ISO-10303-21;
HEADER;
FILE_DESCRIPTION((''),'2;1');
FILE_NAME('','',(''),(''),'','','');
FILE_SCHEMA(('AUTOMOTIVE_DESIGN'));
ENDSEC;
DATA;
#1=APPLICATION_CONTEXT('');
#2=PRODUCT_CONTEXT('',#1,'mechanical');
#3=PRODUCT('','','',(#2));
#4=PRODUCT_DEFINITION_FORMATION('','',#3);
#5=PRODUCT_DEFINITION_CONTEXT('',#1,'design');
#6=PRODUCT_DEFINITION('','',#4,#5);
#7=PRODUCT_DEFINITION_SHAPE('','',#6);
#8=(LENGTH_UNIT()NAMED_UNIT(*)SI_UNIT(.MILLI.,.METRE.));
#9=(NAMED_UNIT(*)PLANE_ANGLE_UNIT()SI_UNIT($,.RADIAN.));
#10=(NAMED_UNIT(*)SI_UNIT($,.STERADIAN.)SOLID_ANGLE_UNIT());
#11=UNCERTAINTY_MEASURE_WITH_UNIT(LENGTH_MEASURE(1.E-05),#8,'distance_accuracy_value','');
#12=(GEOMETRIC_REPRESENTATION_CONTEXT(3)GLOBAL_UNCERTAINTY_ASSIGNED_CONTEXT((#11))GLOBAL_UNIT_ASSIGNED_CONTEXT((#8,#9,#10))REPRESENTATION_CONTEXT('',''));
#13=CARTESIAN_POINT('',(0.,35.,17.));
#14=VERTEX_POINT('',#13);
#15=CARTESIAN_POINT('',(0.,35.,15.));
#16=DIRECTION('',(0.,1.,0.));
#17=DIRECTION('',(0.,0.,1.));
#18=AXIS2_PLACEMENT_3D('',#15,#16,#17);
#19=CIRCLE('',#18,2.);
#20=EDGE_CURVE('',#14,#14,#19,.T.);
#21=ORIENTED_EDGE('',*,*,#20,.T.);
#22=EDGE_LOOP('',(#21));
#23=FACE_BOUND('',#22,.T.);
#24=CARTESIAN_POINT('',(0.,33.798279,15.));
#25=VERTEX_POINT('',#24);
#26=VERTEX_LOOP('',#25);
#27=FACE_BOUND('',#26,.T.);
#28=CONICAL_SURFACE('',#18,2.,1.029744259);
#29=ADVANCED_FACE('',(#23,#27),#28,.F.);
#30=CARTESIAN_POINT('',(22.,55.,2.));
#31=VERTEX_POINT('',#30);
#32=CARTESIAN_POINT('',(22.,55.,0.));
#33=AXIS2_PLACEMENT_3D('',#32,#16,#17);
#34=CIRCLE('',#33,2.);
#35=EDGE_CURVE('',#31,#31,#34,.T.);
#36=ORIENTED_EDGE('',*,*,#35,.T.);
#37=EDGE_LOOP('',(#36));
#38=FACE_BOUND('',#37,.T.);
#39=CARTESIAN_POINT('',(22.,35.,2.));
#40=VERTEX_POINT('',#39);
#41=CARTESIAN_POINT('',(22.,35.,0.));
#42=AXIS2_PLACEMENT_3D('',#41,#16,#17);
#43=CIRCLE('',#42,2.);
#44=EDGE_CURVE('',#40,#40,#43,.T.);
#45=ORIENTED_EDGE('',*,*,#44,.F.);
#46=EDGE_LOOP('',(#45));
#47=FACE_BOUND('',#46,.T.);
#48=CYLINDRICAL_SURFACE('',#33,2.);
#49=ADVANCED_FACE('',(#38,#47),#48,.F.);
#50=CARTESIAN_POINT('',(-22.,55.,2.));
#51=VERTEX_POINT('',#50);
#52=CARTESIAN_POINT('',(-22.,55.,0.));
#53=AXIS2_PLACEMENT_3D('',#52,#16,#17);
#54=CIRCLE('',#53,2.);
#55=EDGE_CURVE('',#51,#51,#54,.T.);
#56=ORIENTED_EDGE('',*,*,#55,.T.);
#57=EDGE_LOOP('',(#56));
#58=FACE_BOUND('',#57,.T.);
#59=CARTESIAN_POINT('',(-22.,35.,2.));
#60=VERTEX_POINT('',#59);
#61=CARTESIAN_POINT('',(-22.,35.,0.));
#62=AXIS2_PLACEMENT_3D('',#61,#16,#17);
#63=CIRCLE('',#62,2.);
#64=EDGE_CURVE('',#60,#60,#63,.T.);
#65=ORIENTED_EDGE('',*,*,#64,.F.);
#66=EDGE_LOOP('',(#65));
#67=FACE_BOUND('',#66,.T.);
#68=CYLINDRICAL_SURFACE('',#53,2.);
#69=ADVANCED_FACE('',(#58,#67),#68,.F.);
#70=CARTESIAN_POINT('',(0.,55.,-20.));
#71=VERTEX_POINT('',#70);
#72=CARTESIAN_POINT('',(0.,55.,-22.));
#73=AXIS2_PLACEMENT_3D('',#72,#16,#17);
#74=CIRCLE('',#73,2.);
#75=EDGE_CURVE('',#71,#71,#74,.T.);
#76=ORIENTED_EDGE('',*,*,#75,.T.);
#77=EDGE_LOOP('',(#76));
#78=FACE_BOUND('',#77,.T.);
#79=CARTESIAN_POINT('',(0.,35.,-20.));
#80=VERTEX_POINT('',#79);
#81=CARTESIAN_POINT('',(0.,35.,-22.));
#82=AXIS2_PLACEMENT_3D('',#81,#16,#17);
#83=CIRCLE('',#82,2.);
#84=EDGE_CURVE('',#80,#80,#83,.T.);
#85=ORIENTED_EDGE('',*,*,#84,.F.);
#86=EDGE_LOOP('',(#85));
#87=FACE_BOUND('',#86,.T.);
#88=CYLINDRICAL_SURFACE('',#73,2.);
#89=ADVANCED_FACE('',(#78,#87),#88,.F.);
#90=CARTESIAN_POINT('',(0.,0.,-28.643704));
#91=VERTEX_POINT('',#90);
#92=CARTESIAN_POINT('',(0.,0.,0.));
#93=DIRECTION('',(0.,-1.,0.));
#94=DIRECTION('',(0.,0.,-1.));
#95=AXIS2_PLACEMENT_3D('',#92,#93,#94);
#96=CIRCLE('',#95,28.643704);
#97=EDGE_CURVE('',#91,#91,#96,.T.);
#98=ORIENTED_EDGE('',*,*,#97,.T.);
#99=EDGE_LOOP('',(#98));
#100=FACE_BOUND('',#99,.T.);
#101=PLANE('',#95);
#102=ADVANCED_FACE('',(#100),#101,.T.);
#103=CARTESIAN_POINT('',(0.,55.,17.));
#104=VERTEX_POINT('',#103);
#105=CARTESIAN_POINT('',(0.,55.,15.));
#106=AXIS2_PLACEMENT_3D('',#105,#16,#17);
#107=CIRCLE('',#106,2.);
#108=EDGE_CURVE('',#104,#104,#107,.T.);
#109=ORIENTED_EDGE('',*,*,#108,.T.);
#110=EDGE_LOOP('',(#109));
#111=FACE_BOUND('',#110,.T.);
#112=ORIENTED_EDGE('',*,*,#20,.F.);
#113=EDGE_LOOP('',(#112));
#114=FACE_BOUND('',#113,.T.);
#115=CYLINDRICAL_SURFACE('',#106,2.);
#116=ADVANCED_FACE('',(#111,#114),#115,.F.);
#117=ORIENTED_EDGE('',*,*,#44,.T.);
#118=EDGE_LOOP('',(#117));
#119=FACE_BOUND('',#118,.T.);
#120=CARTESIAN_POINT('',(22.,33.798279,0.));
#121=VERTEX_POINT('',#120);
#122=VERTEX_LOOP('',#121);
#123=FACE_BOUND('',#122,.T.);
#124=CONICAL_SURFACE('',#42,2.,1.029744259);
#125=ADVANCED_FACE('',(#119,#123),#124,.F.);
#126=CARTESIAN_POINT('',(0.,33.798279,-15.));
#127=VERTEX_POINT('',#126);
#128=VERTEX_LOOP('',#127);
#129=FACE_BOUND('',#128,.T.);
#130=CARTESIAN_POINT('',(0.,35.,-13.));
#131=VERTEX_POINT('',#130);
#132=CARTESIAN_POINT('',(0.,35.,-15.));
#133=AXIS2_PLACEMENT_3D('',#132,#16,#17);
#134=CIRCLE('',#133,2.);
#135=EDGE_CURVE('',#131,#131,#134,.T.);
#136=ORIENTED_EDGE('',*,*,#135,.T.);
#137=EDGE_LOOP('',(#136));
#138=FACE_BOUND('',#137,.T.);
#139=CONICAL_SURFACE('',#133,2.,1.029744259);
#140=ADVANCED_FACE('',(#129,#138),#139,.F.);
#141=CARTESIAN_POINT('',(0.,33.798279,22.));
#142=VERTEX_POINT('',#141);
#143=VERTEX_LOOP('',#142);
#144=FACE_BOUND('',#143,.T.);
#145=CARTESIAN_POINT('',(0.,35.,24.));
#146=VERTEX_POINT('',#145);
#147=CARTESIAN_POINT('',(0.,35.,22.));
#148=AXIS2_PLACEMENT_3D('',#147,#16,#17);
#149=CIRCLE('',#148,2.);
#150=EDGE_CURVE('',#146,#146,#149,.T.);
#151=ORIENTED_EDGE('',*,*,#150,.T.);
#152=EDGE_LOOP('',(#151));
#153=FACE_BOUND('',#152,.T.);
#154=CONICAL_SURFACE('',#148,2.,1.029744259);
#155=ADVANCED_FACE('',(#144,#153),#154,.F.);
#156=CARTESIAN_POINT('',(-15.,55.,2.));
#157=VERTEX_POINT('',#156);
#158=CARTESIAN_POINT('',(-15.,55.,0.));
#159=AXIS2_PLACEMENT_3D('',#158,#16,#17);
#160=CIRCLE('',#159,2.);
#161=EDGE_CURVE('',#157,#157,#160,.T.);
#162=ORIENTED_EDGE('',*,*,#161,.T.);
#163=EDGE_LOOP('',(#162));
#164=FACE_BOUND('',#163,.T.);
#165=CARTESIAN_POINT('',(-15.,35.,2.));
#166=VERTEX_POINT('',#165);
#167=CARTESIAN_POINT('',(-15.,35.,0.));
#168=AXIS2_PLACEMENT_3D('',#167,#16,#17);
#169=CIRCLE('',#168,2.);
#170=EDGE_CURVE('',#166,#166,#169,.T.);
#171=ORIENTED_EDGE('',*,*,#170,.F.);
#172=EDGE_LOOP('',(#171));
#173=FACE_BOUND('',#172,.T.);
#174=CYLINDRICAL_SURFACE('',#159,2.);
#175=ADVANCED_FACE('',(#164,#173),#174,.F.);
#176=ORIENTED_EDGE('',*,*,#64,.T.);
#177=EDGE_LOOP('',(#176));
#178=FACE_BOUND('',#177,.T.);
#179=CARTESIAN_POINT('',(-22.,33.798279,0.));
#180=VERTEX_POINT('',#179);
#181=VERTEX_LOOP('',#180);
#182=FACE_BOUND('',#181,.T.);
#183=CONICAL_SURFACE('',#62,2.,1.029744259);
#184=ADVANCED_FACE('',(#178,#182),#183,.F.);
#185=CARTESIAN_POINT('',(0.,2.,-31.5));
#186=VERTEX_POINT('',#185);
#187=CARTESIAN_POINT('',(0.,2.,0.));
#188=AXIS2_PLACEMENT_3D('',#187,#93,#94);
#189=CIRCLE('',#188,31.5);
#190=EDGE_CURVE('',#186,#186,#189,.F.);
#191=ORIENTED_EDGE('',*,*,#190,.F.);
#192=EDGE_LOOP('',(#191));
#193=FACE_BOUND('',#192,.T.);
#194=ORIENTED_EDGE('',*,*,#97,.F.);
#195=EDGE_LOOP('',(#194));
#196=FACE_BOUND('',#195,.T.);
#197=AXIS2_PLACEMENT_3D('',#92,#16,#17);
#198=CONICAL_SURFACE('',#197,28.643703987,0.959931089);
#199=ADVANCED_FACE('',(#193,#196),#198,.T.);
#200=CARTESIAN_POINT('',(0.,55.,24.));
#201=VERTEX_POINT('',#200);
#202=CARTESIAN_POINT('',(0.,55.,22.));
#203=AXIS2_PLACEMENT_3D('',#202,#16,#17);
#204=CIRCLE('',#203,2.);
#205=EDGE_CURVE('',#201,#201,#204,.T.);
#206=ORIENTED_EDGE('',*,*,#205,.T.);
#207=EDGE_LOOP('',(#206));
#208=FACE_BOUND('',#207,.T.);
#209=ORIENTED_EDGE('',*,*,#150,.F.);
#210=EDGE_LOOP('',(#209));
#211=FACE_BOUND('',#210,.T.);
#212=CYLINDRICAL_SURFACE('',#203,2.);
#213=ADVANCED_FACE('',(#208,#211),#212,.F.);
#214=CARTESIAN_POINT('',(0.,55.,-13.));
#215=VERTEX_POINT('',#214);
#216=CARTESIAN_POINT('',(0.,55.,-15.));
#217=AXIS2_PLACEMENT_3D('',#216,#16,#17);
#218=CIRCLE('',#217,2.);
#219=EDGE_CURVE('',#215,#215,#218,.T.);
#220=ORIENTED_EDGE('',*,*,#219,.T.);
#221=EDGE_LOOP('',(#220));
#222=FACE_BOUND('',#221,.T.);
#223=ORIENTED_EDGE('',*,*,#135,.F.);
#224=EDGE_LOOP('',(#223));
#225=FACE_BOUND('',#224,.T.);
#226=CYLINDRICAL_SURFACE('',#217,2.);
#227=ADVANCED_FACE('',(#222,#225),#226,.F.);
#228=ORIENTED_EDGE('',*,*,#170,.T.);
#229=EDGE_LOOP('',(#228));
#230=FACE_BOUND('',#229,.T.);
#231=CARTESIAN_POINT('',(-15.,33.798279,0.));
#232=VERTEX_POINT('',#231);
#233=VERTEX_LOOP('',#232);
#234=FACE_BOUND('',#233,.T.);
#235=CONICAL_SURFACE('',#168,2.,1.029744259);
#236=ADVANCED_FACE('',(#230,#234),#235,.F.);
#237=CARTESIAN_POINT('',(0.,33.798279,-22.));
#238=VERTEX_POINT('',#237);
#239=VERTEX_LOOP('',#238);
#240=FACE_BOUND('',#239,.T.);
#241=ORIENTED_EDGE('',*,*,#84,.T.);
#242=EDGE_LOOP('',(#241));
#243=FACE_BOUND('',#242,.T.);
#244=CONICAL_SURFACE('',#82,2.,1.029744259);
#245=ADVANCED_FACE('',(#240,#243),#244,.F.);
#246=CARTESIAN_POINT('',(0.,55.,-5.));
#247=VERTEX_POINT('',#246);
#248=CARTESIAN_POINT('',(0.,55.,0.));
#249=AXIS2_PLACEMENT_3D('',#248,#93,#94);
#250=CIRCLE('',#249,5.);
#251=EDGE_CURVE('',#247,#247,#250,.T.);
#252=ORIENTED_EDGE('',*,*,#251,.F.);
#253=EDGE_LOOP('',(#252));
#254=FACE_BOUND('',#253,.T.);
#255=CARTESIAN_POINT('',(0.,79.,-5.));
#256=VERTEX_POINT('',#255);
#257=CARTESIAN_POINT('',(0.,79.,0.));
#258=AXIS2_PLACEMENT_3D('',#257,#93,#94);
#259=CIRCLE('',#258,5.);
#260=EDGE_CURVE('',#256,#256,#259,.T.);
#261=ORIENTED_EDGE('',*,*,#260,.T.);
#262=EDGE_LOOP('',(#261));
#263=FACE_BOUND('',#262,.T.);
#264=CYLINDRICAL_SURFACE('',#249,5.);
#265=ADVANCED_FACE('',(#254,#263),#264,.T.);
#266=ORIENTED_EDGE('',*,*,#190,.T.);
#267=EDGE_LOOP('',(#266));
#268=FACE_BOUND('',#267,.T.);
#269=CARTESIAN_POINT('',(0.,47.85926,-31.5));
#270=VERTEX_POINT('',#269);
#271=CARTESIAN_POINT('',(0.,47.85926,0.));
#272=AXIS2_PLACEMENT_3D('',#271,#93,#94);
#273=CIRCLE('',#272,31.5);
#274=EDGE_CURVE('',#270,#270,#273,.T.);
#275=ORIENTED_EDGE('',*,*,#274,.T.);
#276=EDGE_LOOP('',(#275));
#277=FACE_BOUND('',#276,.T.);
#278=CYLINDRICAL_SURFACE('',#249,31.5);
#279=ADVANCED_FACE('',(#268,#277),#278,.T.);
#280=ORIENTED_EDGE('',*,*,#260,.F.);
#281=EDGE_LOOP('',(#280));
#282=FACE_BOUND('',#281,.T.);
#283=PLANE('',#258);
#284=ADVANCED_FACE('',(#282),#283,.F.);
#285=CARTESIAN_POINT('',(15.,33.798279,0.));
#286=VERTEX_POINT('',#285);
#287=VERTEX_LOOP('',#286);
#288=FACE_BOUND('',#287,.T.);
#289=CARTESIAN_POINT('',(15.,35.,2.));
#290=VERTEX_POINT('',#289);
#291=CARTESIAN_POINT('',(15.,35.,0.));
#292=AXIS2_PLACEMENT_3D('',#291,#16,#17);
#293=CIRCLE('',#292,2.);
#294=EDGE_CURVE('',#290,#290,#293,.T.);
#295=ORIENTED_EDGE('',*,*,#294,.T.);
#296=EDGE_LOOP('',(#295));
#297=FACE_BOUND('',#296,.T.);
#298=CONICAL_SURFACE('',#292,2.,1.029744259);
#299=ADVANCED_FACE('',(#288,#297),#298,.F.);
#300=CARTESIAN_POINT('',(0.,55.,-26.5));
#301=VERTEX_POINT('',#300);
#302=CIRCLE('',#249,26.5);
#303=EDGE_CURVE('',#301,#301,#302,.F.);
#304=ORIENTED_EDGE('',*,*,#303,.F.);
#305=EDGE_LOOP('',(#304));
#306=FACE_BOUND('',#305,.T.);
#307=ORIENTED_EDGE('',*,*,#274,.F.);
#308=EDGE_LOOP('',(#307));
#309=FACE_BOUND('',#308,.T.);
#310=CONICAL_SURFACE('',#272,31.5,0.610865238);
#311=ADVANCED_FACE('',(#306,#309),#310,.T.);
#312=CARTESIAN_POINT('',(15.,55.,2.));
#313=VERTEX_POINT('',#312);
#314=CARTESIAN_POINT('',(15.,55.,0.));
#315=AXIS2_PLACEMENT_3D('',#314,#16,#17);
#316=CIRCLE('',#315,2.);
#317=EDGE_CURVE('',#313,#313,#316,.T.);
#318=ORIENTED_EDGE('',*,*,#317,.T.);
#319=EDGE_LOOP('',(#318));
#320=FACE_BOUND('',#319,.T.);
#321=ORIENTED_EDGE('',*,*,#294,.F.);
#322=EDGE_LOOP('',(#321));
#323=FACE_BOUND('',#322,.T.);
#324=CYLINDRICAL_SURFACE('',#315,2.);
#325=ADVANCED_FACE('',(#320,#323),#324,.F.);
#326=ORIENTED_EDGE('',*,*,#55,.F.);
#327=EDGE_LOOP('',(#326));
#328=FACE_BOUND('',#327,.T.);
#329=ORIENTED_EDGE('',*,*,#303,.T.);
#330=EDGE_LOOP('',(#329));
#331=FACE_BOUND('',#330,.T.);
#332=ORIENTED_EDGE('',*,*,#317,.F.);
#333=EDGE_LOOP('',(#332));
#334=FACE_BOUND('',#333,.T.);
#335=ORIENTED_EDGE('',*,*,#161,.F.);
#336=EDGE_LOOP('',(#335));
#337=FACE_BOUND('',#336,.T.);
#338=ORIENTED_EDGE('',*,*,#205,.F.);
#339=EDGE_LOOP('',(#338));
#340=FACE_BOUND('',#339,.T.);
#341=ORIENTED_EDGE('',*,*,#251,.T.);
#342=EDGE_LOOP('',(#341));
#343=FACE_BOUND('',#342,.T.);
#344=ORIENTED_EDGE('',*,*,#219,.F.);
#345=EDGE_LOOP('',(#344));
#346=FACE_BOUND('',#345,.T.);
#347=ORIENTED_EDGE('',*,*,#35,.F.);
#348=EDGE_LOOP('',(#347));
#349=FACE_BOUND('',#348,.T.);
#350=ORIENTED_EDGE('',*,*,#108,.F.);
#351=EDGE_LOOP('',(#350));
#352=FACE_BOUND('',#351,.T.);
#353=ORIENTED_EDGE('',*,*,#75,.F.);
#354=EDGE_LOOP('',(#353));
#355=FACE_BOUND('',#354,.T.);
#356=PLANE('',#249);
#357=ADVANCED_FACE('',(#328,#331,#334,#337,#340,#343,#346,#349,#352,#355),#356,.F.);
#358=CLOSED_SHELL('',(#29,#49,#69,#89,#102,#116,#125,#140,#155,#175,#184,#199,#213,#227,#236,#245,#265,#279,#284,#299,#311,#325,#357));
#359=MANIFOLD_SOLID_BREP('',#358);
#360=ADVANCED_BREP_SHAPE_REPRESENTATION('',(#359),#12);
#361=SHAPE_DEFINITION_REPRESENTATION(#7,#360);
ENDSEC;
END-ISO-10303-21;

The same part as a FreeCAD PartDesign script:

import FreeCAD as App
import Part
import Sketcher

V = App.Vector
Q = App.Units.Quantity


def edges_at(feature, points):
    """Names of the edges that pass closest to the given points."""
    edges = feature.Shape.Edges
    near = lambda p: min(range(len(edges)), key=lambda i: edges[i].distToShape(Part.Vertex(*p))[0])
    return sorted({f"Edge{near(p) + 1}" for p in points})

doc = App.newDocument("Part")
body = doc.addObject("PartDesign::Body", "Body")

sketch1 = doc.addObject("Sketcher::SketchObject", "Sketch")
body.addObject(sketch1)
sketch1.AttachmentSupport = (doc.XY_Plane, [""])
sketch1.MapMode = "FlatFace"
sketch1.addGeometry([
    Part.LineSegment(V(0, 0, 0), V(31.5, 0, 0)),
    Part.LineSegment(V(31.5, 0, 0), V(31.5, 55, 0)),
    Part.LineSegment(V(31.5, 55, 0), V(5, 55, 0)),
    Part.LineSegment(V(5, 55, 0), V(5, 79, 0)),
    Part.LineSegment(V(5, 79, 0), V(0, 79, 0)),
    Part.LineSegment(V(0, 79, 0), V(0, 0, 0)),
], False)
sketch1.addConstraint([
    Sketcher.Constraint("Coincident", 0, 2, 1, 1),
    Sketcher.Constraint("Coincident", 1, 2, 2, 1),
    Sketcher.Constraint("Coincident", 2, 2, 3, 1),
    Sketcher.Constraint("Coincident", 3, 2, 4, 1),
    Sketcher.Constraint("Coincident", 4, 2, 5, 1),
    Sketcher.Constraint("Coincident", 5, 2, 0, 1),
    Sketcher.Constraint("Horizontal", 0),
    Sketcher.Constraint("Vertical", 1),
    Sketcher.Constraint("Horizontal", 2),
    Sketcher.Constraint("Vertical", 3),
    Sketcher.Constraint("Horizontal", 4),
    Sketcher.Constraint("Vertical", 5),
    Sketcher.Constraint("Coincident", 5, 2, -1, 1),
    Sketcher.Constraint("DistanceX", 4, 2, 4, 1, Q("5 mm")),
    Sketcher.Constraint("DistanceY", 1, 1, 1, 2, Q("55 mm")),
    Sketcher.Constraint("DistanceY", 3, 1, 3, 2, Q("24 mm")),
    Sketcher.Constraint("DistanceX", 0, 1, 0, 2, Q("31.5 mm")),
])
revolution = doc.addObject("PartDesign::Revolution", "Revolution")
body.addObject(revolution)
revolution.Profile = sketch1
revolution.ReferenceAxis = (sketch1, ["V_Axis"])
revolution.Angle = 360
doc.recompute()

chamfer = doc.addObject("PartDesign::Chamfer", "Chamfer")
body.addObject(chamfer)
chamfer.Base = (revolution, edges_at(revolution, [(-31.5, 55, 0)]))
chamfer.ChamferType = "Two distances"
chamfer.Size = 5
chamfer.Size2 = 7.14074
chamfer.FlipDirection = True
doc.recompute()

chamfer2 = doc.addObject("PartDesign::Chamfer", "Chamfer001")
body.addObject(chamfer2)
chamfer2.Base = (chamfer, edges_at(chamfer, [(-31.5, 0, 0)]))
chamfer2.ChamferType = "Two distances"
chamfer2.Size = 2
chamfer2.Size2 = 2.856296

sketch2 = doc.addObject("Sketcher::SketchObject", "Sketch001")
body.addObject(sketch2)
sketch2.AttachmentSupport = (doc.XZ_Plane, [""])
sketch2.MapMode = "FlatFace"
sketch2.AttachmentOffset = App.Placement(V(0, 0, -55), App.Rotation())
sketch2.addGeometry([
    Part.Circle(V(15, 0, 0), V(0, 0, 1), 2),
    Part.Circle(V(0, -22, 0), V(0, 0, 1), 2),
    Part.Circle(V(22, 0, 0), V(0, 0, 1), 2),
    Part.Circle(V(0, 22, 0), V(0, 0, 1), 2),
    Part.Circle(V(-22, 0, 0), V(0, 0, 1), 2),
    Part.Circle(V(0, -15, 0), V(0, 0, 1), 2),
    Part.Circle(V(-15, 0, 0), V(0, 0, 1), 2),
    Part.Circle(V(0, 15, 0), V(0, 0, 1), 2),
], False)
sketch2.addConstraint([
    Sketcher.Constraint("Equal", 0, 1),
    Sketcher.Constraint("Equal", 1, 2),
    Sketcher.Constraint("Equal", 2, 3),
    Sketcher.Constraint("Equal", 3, 4),
    Sketcher.Constraint("Equal", 4, 5),
    Sketcher.Constraint("Equal", 5, 6),
    Sketcher.Constraint("Equal", 6, 7),
    Sketcher.Constraint("Symmetric", 1, 3, 3, 3, -1, 1),
    Sketcher.Constraint("Symmetric", 2, 3, 4, 3, -1, 1),
    Sketcher.Constraint("Symmetric", 0, 3, 6, 3, -1, 1),
    Sketcher.Constraint("Symmetric", 5, 3, 7, 3, -1, 1),
    Sketcher.Constraint("PointOnObject", 0, 3, -1),
    Sketcher.Constraint("PointOnObject", 1, 3, -2),
    Sketcher.Constraint("PointOnObject", 2, 3, -1),
    Sketcher.Constraint("PointOnObject", 5, 3, -2),
    Sketcher.Constraint("Diameter", 0, Q("4 mm")),
    Sketcher.Constraint("DistanceX", -1, 1, 0, 3, Q("15 mm")),
    Sketcher.Constraint("DistanceY", 1, 3, -1, 1, Q("22 mm")),
    Sketcher.Constraint("DistanceX", -1, 1, 2, 3, Q("22 mm")),
    Sketcher.Constraint("DistanceY", 5, 3, -1, 1, Q("15 mm")),
])
doc.recompute()
hole = doc.addObject("PartDesign::Hole", "Hole")
body.addObject(hole)
hole.Profile = sketch2
hole.ThreadType = "None"
hole.Diameter = 4
hole.DepthType = "Dimension"
hole.Depth = 20
hole.DrillPoint = "Angled"
hole.DrillPointAngle = 118
hole.Reversed = True

doc.recompute()
